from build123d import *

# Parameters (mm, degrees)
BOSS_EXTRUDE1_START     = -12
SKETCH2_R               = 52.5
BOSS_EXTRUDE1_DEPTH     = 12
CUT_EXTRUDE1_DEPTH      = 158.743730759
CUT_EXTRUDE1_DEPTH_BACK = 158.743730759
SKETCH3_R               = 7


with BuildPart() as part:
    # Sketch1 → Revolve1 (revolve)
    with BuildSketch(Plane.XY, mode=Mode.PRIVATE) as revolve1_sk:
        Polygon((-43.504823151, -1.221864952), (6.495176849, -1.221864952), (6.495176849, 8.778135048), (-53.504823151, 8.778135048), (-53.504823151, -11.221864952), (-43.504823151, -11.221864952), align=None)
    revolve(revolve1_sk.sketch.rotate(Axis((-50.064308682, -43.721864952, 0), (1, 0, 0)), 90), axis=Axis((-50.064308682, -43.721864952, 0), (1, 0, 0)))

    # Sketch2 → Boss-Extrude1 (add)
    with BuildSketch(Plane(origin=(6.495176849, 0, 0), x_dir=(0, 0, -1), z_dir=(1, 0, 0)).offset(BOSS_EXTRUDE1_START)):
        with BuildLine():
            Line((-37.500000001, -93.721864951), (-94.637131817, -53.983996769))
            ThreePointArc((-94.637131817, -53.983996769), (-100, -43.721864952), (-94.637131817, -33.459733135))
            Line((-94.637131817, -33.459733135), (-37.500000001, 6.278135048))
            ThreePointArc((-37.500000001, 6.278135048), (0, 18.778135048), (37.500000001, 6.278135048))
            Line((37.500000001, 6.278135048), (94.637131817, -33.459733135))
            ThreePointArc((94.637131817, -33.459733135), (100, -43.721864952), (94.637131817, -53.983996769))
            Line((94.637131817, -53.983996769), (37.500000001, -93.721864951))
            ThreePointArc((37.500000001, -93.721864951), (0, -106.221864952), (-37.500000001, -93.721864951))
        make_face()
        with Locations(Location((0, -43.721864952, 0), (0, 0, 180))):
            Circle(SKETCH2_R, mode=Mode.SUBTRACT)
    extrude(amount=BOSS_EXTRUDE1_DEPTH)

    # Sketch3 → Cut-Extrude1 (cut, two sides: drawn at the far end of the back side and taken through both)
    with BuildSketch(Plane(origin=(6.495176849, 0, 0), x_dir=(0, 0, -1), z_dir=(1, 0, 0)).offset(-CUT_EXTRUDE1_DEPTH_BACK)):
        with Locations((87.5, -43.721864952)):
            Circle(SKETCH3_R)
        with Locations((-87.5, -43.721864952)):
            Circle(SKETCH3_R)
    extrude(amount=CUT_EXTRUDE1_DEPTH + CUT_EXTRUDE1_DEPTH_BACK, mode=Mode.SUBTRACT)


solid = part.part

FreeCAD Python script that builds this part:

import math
import FreeCAD as App
import Part
import Sketcher


def add_polygon(sketch, points):
    """Adds a closed chain of lines whose ends are joined by coincident constraints."""
    first, n = sketch.GeometryCount, len(points)
    for a, b in zip(points, points[1:] + points[:1]):
        sketch.addGeometry(Part.LineSegment(App.Vector(*a, 0), App.Vector(*b, 0)), False)
    for i in range(n):
        sketch.addConstraint(Sketcher.Constraint("Coincident", first + i, 2, first + (i + 1) % n, 1))

doc = App.newDocument("Part")
body = doc.addObject("PartDesign::Body", "Body")

# Sketch on XY plane
sketch1 = body.newObject("Sketcher::SketchObject", "Sketch")
sketch1.AttachmentSupport = (doc.getObject("XY_Plane"), [""])
sketch1.MapMode = "FlatFace"
add_polygon(sketch1, [(-43.504823, -1.221865), (6.495177, -1.221865), (6.495177, 8.778135), (-53.504823, 8.778135), (-53.504823, -11.221865), (-43.504823, -11.221865)])  # lines 0-5
sketch1.addGeometry(Part.LineSegment(App.Vector(-53.504823, -43.721865, 0), App.Vector(6.495177, -43.721865, 0)), True)  # axis
sketch1.addConstraint([
    Sketcher.Constraint("Horizontal", 0),
    Sketcher.Constraint("Vertical", 1),
    Sketcher.Constraint("Horizontal", 2),
    Sketcher.Constraint("Vertical", 3),
    Sketcher.Constraint("Horizontal", 4),
    Sketcher.Constraint("Vertical", 5),
    Sketcher.Constraint("Horizontal", 6),
    Sketcher.Constraint("Vertical", 3, 2, 6, 1),
    Sketcher.Constraint("Vertical", 1, 2, 6, 2),
    Sketcher.Constraint("Equal", 4, 1),
    Sketcher.Constraint("Equal", 1, 5),
    Sketcher.Constraint("DistanceX", 0, 1, 0, 2, 50.0),
    Sketcher.Constraint("DistanceX", 2, 2, 2, 1, 60.0),
    Sketcher.Constraint("DistanceY", 6, 1, 3, 2, 32.5),
    Sketcher.Constraint("DistanceX", -1, 1, 0, 2, 6.495177),
    Sketcher.Constraint("DistanceY", 0, 2, -1, 1, 1.221865),
])
revolution = body.newObject("PartDesign::Revolution", "Revolution")
revolution.Profile = sketch1
revolution.ReferenceAxis = (sketch1, ["Axis0"])
revolution.Angle = 360

# Sketch on YZ plane
sketch2 = body.newObject("Sketcher::SketchObject", "Sketch001")
sketch2.AttachmentSupport = (doc.getObject("YZ_Plane"), [""])
sketch2.MapMode = "FlatFace"
sketch2.AttachmentOffset = App.Placement(App.Vector(0, 0, -5.504823), App.Rotation())
sketch2.addGeometry([
    Part.LineSegment(App.Vector(-53.983997, 94.637132, 0), App.Vector(-93.721865, 37.5, 0)),  # 0
    Part.ArcOfCircle(Part.Circle(App.Vector(-43.721865, 0, 0), App.Vector(0, 0, 1), 62.5), math.radians(143.130102), math.radians(216.869898)),  # 1
    Part.LineSegment(App.Vector(-93.721865, -37.5, 0), App.Vector(-53.983997, -94.637132, 0)),  # 2
    Part.ArcOfCircle(Part.Circle(App.Vector(-43.721865, -87.5, 0), App.Vector(0, 0, 1), 12.5), math.radians(-145.182067), math.radians(-34.817933)),  # 3
    Part.LineSegment(App.Vector(-33.459733, -94.637132, 0), App.Vector(6.278135, -37.5, 0)),  # 4
    Part.ArcOfCircle(Part.Circle(App.Vector(-43.721865, 0, 0), App.Vector(0, 0, 1), 62.5), math.radians(-36.869898), math.radians(36.869898)),  # 5
    Part.LineSegment(App.Vector(6.278135, 37.5, 0), App.Vector(-33.459733, 94.637132, 0)),  # 6
    Part.ArcOfCircle(Part.Circle(App.Vector(-43.721865, 87.5, 0), App.Vector(0, 0, 1), 12.5), math.radians(34.817933), math.radians(145.182067)),  # 7
    Part.Circle(App.Vector(-43.721865, 0, 0), App.Vector(0, 0, 1), 52.5),  # 8
], False)
sketch2.addConstraint([
    Sketcher.Constraint("Coincident", 0, 2, 1, 1),
    Sketcher.Constraint("Coincident", 1, 2, 2, 1),
    Sketcher.Constraint("Tangent", 2, 2, 3, 1),
    Sketcher.Constraint("Tangent", 3, 2, 4, 1),
    Sketcher.Constraint("Coincident", 4, 2, 5, 1),
    Sketcher.Constraint("Coincident", 5, 2, 6, 1),
    Sketcher.Constraint("Tangent", 6, 2, 7, 1),
    Sketcher.Constraint("Tangent", 7, 2, 0, 1),
    Sketcher.Constraint("Coincident", 5, 3, 1, 3),
    Sketcher.Constraint("Coincident", 8, 3, 1, 3),
    Sketcher.Constraint("Equal", 1, 5),
    Sketcher.Constraint("Equal", 3, 7),
    Sketcher.Constraint("Symmetric", 3, 3, 7, 3, -1),
    Sketcher.Constraint("Symmetric", 0, 2, 1, 2, -1),
    Sketcher.Constraint("Parallel", 0, 4),
    Sketcher.Constraint("Parallel", 2, 6),
    Sketcher.Constraint("Horizontal", 1, 2, 4, 2),
    Sketcher.Constraint("Diameter", 8, 105.0),
    Sketcher.Constraint("Radius", 1, 62.5),
    Sketcher.Constraint("Radius", 3, 12.5),
    Sketcher.Constraint("DistanceY", 3, 3, 7, 3, 175.0),
    Sketcher.Constraint("DistanceX", 0, 2, 5, 3, 50.0),
    Sketcher.Constraint("DistanceX", 1, 3, -1, 1, 43.721865),
])
pad1 = body.newObject("PartDesign::Pad", "Pad")
pad1.Profile = sketch2
pad1.Length = 12

# Sketch on YZ plane
sketch3 = body.newObject("Sketcher::SketchObject", "Sketch002")
sketch3.AttachmentSupport = (doc.getObject("YZ_Plane"), [""])
sketch3.MapMode = "FlatFace"
sketch3.AttachmentOffset = App.Placement(App.Vector(0, 0, 6.495177), App.Rotation())
sketch3.addGeometry([
    Part.Circle(App.Vector(-43.721865, -87.5, 0), App.Vector(0, 0, 1), 7),
    Part.Circle(App.Vector(-43.721865, 87.5, 0), App.Vector(0, 0, 1), 7),
], False)
sketch3.addConstraint([
    Sketcher.Constraint("Equal", 0, 1),
    Sketcher.Constraint("Symmetric", 0, 3, 1, 3, -1),
    Sketcher.Constraint("Diameter", 0, 14.0),
    Sketcher.Constraint("DistanceY", 0, 3, 1, 3, 175.0),
    Sketcher.Constraint("DistanceX", 0, 3, -1, 1, 43.721865),
])
pocket1 = body.newObject("PartDesign::Pocket", "Pocket")
pocket1.Profile = sketch3
pocket1.Type = "ThroughAll"
pocket1.Midplane = True

doc.recompute()
